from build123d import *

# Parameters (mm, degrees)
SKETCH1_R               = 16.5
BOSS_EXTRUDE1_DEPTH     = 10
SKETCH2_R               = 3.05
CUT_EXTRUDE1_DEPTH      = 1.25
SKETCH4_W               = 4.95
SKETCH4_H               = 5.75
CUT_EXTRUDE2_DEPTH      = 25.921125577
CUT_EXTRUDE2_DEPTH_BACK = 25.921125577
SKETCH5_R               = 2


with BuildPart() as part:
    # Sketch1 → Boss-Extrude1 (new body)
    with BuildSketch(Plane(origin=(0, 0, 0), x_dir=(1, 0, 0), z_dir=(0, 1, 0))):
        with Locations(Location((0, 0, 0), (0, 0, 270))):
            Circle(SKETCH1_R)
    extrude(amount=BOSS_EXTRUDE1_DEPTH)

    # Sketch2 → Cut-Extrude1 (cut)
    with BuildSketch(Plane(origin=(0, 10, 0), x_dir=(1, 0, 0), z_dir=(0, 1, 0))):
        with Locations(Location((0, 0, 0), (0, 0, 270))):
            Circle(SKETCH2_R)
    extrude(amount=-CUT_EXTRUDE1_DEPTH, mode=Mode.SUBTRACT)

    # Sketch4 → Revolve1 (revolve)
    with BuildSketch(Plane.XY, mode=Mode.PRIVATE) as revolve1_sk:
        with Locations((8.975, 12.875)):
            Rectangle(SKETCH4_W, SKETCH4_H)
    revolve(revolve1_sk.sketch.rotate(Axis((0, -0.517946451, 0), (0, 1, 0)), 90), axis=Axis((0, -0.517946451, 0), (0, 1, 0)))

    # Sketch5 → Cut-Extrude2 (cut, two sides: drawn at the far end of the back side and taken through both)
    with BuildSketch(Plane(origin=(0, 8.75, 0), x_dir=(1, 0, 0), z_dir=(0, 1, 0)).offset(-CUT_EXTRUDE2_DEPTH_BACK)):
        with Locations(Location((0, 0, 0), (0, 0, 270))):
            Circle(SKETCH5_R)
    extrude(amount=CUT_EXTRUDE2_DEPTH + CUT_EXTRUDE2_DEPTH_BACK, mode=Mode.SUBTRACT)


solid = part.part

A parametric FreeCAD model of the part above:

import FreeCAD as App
import Part
import Sketcher
from FreeCAD import Vector
Q = App.Units.Quantity


def add_polygon(sketch, points):
    """Adds a closed chain of lines whose ends are joined by coincident constraints."""
    first, n = sketch.GeometryCount, len(points)
    for a, b in zip(points, points[1:] + points[:1]):
        sketch.addGeometry(Part.LineSegment(App.Vector(*a, 0), App.Vector(*b, 0)), False)
    for i in range(n):
        sketch.addConstraint(Sketcher.Constraint("Coincident", first + i, 2, first + (i + 1) % n, 1))

doc = App.newDocument("Part")
params = doc.addObject("Spreadsheet::Sheet", "Params")
for row, (alias, value) in enumerate([
    ("sketch1_diameter", "33 mm"),
    ("pad1_length", "10 mm"),
    ("sketch2_diameter", "6.1 mm"),
    ("pocket1_length", "1.25 mm"),
    ("sketch3_width", "4.95 mm"),
    ("sketch3_height", "5.75 mm"),
    ("revolution_angle", "360 deg"),
    ("sketch4_diameter", "4 mm"),
], start=1):
    params.set(f"A{row}", alias)
    params.set(f"B{row}", "=" + value)
    params.setAlias(f"B{row}", alias)

body = doc.addObject("PartDesign::Body", "Body")

# Sketch on XZ plane
sketch1 = body.newObject("Sketcher::SketchObject", "Sketch")
sketch1.AttachmentSupport = (doc.getObject("XZ_Plane"), [""])
sketch1.MapMode = "FlatFace"
sketch1.addGeometry(Part.Circle(Vector(0, 0, 0), Vector(0, 0, 1), 16), False)
sketch1.addConstraint(Sketcher.Constraint("Coincident", 0, 3, -1, 1))
sketch1.addConstraint(Sketcher.Constraint("Diameter", 0, Q("33 mm")))
sketch1.setExpression("Constraints[1]", "Params.sketch1_diameter")
pad1 = body.newObject("PartDesign::Pad", "Pad")
pad1.Profile = sketch1
pad1.setExpression("Length", "Params.pad1_length")
pad1.Reversed = True

# Sketch on XZ plane
sketch2 = body.newObject("Sketcher::SketchObject", "Sketch001")
sketch2.AttachmentSupport = (doc.getObject("XZ_Plane"), [""])
sketch2.MapMode = "FlatFace"
sketch2.AttachmentOffset = App.Placement(Vector(0, 0, -10), App.Rotation())
sketch2.addGeometry(Part.Circle(Vector(0, 0, 0), Vector(0, 0, 1), 3), False)
sketch2.addConstraint(Sketcher.Constraint("Coincident", 0, 3, -1, 1))
sketch2.addConstraint(Sketcher.Constraint("Diameter", 0, Q("6.1 mm")))
sketch2.setExpression("Constraints[1]", "Params.sketch2_diameter")
pocket1 = body.newObject("PartDesign::Pocket", "Pocket")
pocket1.Profile = sketch2
pocket1.setExpression("Length", "Params.pocket1_length")
pocket1.Reversed = True

# Sketch on XY plane
sketch3 = body.newObject("Sketcher::SketchObject", "Sketch002")
sketch3.AttachmentSupport = (doc.getObject("XY_Plane"), [""])
sketch3.MapMode = "FlatFace"
add_polygon(sketch3, [(6.5, 15.8), (6.5, 10), (11.4, 10), (11.4, 15.8)])  # lines 0-3
sketch3.addConstraint(Sketcher.Constraint("Vertical", 0))
sketch3.addConstraint(Sketcher.Constraint("Horizontal", 1))
sketch3.addConstraint(Sketcher.Constraint("Vertical", 2))
sketch3.addConstraint(Sketcher.Constraint("Horizontal", 3))
sketch3.addConstraint(Sketcher.Constraint("DistanceY", -1, 1, 0, 2, Q("10 mm")))
sketch3.addConstraint(Sketcher.Constraint("DistanceX", 1, 1, 1, 2, Q("4.95 mm")))
sketch3.addConstraint(Sketcher.Constraint("DistanceY", 0, 2, 0, 1, Q("5.75 mm")))
sketch3.addConstraint(Sketcher.Constraint("DistanceX", -1, 1, 0, 2, Q("6.5 mm")))
sketch3.setExpression("Constraints[9]", "Params.sketch3_width")
sketch3.setExpression("Constraints[10]", "Params.sketch3_height")
revolution = body.newObject("PartDesign::Revolution", "Revolution")
revolution.Profile = sketch3
revolution.ReferenceAxis = (sketch3, ["V_Axis"])
revolution.setExpression("Angle", "Params.revolution_angle")

# Sketch on XZ plane
sketch4 = body.newObject("Sketcher::SketchObject", "Sketch003")
sketch4.AttachmentSupport = (doc.getObject("XZ_Plane"), [""])
sketch4.MapMode = "FlatFace"
sketch4.AttachmentOffset = App.Placement(Vector(0, 0, -8.75), App.Rotation())
sketch4.addGeometry(Part.Circle(Vector(0, 0, 0), Vector(0, 0, 1), 2), False)
sketch4.addConstraint(Sketcher.Constraint("Coincident", 0, 3, -1, 1))
sketch4.addConstraint(Sketcher.Constraint("Diameter", 0, Q("4 mm")))
sketch4.setExpression("Constraints[1]", "Params.sketch4_diameter")
pocket2 = body.newObject("PartDesign::Pocket", "Pocket001")
pocket2.Profile = sketch4
pocket2.Type = "ThroughAll"
pocket2.Midplane = True

doc.recompute()
